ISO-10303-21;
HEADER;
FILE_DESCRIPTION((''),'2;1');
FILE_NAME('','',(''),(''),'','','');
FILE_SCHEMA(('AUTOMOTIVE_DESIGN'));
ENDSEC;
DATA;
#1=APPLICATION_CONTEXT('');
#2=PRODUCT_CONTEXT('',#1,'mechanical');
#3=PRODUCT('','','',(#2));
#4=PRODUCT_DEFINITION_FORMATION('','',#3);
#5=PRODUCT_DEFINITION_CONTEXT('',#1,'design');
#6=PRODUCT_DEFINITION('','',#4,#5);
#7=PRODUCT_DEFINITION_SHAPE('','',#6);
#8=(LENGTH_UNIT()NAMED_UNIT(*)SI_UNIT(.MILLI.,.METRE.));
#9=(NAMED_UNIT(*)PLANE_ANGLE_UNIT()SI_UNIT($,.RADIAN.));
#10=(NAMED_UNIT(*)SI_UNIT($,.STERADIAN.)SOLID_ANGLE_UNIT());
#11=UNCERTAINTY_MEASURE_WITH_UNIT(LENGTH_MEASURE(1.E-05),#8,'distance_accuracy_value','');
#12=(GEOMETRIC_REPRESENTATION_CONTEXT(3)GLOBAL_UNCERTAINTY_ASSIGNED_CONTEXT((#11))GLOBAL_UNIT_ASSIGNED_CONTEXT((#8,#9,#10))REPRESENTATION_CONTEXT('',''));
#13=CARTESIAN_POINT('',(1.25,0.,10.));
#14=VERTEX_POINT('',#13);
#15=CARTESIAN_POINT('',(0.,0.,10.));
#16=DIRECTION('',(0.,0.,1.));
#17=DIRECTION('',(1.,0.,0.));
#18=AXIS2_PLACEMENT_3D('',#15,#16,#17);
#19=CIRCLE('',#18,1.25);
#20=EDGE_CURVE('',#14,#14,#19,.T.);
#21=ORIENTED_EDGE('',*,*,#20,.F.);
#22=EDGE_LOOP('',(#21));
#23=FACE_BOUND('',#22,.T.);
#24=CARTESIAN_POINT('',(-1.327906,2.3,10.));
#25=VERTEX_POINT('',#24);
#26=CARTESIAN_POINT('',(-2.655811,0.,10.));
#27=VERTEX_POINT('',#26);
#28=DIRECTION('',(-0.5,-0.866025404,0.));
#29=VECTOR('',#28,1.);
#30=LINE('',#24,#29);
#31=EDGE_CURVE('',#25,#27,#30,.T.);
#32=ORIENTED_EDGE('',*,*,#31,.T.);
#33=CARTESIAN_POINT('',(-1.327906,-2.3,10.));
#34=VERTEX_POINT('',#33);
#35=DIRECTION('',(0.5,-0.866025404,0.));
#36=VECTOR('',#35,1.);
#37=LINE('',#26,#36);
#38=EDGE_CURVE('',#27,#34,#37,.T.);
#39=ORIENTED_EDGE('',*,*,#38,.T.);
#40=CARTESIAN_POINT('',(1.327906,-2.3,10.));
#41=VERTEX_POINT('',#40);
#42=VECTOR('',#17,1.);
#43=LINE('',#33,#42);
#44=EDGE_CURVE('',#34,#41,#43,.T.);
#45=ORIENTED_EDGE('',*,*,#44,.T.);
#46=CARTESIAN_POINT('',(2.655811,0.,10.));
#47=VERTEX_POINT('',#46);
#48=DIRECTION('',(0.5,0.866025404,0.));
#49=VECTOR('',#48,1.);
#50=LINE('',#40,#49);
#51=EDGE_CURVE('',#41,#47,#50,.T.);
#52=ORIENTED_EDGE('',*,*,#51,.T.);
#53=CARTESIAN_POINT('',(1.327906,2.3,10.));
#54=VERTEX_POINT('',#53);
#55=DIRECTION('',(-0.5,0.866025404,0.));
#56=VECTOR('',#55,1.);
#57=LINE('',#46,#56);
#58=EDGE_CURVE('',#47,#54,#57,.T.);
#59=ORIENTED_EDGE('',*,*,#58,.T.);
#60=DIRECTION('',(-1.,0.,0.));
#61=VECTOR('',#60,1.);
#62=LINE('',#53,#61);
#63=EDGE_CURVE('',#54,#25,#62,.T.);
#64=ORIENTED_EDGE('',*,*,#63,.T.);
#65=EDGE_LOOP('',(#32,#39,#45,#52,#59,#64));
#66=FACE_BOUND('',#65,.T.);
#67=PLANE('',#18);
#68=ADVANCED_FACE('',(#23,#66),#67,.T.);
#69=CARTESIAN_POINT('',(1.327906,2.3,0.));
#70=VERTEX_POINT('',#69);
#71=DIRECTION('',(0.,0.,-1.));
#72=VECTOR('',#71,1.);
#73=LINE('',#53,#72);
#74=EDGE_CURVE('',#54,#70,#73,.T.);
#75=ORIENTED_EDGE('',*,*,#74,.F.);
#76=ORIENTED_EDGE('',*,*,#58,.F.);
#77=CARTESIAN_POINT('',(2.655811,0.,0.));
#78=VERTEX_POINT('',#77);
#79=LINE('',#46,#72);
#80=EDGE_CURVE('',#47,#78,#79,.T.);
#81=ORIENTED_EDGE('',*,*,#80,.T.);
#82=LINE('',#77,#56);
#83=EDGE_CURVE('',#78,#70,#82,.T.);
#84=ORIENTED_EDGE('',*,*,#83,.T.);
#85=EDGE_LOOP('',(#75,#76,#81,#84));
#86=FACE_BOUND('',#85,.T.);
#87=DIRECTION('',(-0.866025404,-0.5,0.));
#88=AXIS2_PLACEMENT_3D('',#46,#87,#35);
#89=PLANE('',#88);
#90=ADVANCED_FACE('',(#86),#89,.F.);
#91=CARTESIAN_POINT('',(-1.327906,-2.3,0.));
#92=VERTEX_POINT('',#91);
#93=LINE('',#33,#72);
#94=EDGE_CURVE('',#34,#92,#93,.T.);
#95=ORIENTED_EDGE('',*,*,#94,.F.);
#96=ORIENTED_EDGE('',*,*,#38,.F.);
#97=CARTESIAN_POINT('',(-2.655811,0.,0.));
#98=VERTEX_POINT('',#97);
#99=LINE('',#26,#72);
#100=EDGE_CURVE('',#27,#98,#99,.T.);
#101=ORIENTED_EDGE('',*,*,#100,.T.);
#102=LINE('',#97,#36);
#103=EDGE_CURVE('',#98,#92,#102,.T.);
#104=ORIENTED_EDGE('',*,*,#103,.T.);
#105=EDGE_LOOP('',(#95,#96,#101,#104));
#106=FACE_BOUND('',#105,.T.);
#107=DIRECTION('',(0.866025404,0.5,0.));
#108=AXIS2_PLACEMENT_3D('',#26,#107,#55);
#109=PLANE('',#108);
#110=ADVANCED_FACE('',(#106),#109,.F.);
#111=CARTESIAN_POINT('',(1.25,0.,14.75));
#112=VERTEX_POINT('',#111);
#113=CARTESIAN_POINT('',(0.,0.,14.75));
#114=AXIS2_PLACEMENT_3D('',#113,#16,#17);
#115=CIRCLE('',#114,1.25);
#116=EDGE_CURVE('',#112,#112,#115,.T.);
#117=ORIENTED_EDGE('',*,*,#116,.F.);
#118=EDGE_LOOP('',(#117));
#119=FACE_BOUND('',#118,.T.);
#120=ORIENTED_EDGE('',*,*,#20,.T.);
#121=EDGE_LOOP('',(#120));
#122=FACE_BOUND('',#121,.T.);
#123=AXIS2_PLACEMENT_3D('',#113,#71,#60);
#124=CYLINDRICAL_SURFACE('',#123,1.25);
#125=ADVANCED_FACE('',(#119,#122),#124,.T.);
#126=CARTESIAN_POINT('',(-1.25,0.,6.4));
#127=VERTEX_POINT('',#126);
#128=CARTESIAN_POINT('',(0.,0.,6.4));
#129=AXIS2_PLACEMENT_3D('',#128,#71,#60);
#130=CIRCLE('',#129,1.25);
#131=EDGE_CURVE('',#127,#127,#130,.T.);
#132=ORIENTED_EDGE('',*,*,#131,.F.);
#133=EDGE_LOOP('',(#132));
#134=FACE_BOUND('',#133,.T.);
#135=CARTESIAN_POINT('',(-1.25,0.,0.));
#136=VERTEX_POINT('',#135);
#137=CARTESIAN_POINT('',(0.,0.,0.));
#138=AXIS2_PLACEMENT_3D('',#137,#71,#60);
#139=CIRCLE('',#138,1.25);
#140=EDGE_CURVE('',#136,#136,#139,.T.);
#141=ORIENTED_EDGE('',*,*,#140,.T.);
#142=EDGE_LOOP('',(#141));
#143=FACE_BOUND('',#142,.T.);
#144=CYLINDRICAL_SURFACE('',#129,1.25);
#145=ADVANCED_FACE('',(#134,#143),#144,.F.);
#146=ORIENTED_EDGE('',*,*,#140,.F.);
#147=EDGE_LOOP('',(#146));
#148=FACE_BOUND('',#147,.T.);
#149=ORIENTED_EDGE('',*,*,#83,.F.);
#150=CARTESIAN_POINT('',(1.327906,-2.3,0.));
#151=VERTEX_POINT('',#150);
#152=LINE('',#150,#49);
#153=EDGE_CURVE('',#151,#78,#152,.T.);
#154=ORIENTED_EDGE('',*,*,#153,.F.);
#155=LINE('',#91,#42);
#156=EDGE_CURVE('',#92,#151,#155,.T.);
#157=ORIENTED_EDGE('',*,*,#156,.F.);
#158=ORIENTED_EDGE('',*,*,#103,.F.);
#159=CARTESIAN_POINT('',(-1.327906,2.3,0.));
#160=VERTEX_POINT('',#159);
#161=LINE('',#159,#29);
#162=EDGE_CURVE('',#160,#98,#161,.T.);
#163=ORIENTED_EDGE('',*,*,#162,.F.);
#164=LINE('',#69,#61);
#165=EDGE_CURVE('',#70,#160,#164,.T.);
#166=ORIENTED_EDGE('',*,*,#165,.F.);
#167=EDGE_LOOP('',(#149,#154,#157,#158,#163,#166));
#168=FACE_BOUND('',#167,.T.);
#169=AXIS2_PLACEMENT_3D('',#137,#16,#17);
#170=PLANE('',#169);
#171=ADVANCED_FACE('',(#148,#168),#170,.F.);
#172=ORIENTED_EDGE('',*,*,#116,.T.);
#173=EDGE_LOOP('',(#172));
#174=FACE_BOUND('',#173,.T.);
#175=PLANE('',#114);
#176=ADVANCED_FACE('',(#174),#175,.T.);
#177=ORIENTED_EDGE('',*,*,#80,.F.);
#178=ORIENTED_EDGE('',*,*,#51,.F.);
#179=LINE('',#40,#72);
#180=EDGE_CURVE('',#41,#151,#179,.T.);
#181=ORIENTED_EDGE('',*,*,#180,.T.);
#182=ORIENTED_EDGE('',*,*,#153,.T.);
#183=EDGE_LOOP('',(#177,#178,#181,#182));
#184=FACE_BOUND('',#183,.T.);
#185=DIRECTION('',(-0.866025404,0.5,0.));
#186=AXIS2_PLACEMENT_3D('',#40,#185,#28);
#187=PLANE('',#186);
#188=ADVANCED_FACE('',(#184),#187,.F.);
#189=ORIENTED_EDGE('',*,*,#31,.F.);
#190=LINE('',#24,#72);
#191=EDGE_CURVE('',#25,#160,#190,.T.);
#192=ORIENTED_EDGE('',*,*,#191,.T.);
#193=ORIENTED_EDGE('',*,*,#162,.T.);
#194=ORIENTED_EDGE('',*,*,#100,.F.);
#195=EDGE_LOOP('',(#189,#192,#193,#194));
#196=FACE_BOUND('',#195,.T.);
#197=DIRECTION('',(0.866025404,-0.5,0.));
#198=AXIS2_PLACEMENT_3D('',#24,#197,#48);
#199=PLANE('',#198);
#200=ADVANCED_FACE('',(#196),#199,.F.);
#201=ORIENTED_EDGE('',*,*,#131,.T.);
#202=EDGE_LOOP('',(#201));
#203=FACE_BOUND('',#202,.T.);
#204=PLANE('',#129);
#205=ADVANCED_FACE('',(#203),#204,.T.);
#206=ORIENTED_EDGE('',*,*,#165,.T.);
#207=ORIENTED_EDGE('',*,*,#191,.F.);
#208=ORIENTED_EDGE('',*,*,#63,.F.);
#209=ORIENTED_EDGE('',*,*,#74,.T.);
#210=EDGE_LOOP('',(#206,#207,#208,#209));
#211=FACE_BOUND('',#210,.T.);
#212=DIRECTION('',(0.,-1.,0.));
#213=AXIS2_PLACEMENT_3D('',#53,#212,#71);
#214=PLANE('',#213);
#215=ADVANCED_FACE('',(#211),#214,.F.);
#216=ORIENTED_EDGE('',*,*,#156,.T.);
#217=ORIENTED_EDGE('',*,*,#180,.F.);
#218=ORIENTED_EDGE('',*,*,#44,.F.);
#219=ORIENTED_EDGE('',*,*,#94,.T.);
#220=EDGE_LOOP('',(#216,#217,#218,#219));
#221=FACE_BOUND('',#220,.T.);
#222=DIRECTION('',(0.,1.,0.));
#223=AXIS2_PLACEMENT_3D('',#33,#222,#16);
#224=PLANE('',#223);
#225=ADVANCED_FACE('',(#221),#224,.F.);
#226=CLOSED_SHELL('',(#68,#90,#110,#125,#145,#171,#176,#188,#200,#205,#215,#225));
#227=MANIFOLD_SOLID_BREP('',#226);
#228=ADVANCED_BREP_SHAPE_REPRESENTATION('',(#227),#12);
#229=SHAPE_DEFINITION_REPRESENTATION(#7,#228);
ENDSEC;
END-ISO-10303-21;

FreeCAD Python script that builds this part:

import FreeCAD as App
import Part
import Sketcher
from FreeCAD import Vector
Q = App.Units.Quantity

doc = App.newDocument("Part")
body = doc.addObject("PartDesign::Body", "Body")

sketch1 = body.newObject("Sketcher::SketchObject", "Sketch")
sketch1.AttachmentSupport = (doc.getObject("XY_Plane"), [""])
sketch1.MapMode = "FlatFace"
sketch1.addGeometry(Part.LineSegment(Vector(2.655811, 0, 0), Vector(1.327906, 2.3, 0)), False)
sketch1.addGeometry(Part.LineSegment(Vector(1.327906, 2.3, 0), Vector(-1.327906, 2.3, 0)), False)
sketch1.addGeometry(Part.LineSegment(Vector(-1.327906, 2.3, 0), Vector(-2.655811, 0, 0)), False)
sketch1.addGeometry(Part.LineSegment(Vector(-2.655811, 0, 0), Vector(-1.327906, -2.3, 0)), False)
sketch1.addGeometry(Part.LineSegment(Vector(-1.327906, -2.3, 0), Vector(1.327906, -2.3, 0)), False)
sketch1.addGeometry(Part.LineSegment(Vector(1.327906, -2.3, 0), Vector(2.655811, 0, 0)), False)
sketch1.addConstraint(Sketcher.Constraint("Coincident", 0, 2, 1, 1))
sketch1.addConstraint(Sketcher.Constraint("Coincident", 1, 2, 2, 1))
sketch1.addConstraint(Sketcher.Constraint("Coincident", 2, 2, 3, 1))
sketch1.addConstraint(Sketcher.Constraint("Coincident", 3, 2, 4, 1))
sketch1.addConstraint(Sketcher.Constraint("Coincident", 4, 2, 5, 1))
sketch1.addConstraint(Sketcher.Constraint("Coincident", 5, 2, 0, 1))
sketch1.addConstraint(Sketcher.Constraint("Horizontal", 1))
sketch1.addConstraint(Sketcher.Constraint("Horizontal", 4))
sketch1.addConstraint(Sketcher.Constraint("Symmetric", 0, 2, 3, 2, -1, 1))
sketch1.addConstraint(Sketcher.Constraint("Symmetric", 2, 2, 5, 2, -1, 1))
sketch1.addConstraint(Sketcher.Constraint("PointOnObject", 2, 2, -1))
sketch1.addConstraint(Sketcher.Constraint("Parallel", 2, 5))
sketch1.addConstraint(Sketcher.Constraint("Vertical", 1, 2, 3, 2))
sketch1.addConstraint(Sketcher.Constraint("Angle", 0, Q("120 deg")))
sketch1.addConstraint(Sketcher.Constraint("DistanceY", -1, 1, 0, 2, 2.3))
sketch1.addConstraint(Sketcher.Constraint("DistanceX", 1, 2, 1, 1, 2.655811))
pad1 = body.newObject("PartDesign::Pad", "Pad")
pad1.Profile = sketch1
pad1.Length = 10

sketch2 = body.newObject("Sketcher::SketchObject", "Sketch001")
sketch2.AttachmentSupport = (doc.getObject("XY_Plane"), [""])
sketch2.MapMode = "FlatFace"
sketch2.AttachmentOffset = App.Placement(Vector(0, 0, 10), App.Rotation())
sketch2.addGeometry(Part.Circle(Vector(0, 0, 0), Vector(0, 0, 1), 1.25), False)
sketch2.addConstraint(Sketcher.Constraint("Coincident", 0, 3, -1, 1))
sketch2.addConstraint(Sketcher.Constraint("Diameter", 0, 2.5))
pad2 = body.newObject("PartDesign::Pad", "Pad001")
pad2.Profile = sketch2
pad2.Length = 4.75

sketch3 = body.newObject("Sketcher::SketchObject", "Sketch002")
sketch3.AttachmentSupport = (doc.getObject("XY_Plane"), [""])
sketch3.MapMode = "FlatFace"
sketch3.addGeometry(Part.Circle(Vector(0, 0, 0), Vector(0, 0, 1), 1.25), False)
sketch3.addConstraint(Sketcher.Constraint("Coincident", 0, 3, -1, 1))
sketch3.addConstraint(Sketcher.Constraint("Diameter", 0, 2.5))
pocket1 = body.newObject("PartDesign::Pocket", "Pocket")
pocket1.Profile = sketch3
pocket1.Length = 6.4
pocket1.Reversed = True

doc.recompute()
